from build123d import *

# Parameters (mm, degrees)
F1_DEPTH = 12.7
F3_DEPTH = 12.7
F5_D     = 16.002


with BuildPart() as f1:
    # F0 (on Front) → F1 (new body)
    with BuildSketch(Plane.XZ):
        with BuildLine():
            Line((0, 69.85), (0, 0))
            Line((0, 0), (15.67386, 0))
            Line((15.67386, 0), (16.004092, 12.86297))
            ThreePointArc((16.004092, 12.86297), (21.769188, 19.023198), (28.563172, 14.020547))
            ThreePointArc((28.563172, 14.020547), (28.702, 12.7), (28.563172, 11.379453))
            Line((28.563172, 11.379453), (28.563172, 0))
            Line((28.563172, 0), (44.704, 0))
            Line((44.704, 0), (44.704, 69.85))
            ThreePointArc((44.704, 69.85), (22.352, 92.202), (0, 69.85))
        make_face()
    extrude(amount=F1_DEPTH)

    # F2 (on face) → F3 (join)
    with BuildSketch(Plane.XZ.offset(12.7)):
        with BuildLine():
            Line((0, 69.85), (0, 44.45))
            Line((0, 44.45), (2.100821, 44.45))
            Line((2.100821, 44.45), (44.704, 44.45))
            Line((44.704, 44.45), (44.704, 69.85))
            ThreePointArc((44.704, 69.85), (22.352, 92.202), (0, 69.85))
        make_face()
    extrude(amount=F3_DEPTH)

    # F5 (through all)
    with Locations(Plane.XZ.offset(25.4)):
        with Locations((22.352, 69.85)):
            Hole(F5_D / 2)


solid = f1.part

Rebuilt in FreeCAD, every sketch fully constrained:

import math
import FreeCAD as App
import Part
import Sketcher
from FreeCAD import Vector
Q = App.Units.Quantity

doc = App.newDocument("Part")
body = doc.addObject("PartDesign::Body", "Body")

# Sketch on XZ plane
sketch1 = body.newObject("Sketcher::SketchObject", "Sketch")
sketch1.AttachmentSupport = (doc.getObject("XZ_Plane"), [""])
sketch1.MapMode = "FlatFace"
sketch1.addGeometry([
    Part.LineSegment(Vector(0, 69.85, 0), Vector(0, 0, 0)),  # 0
    Part.LineSegment(Vector(0, 0, 0), Vector(15.67386, 0, 0)),  # 1
    Part.LineSegment(Vector(15.67386, 0, 0), Vector(16.004092, 12.86297, 0)),  # 2
    Part.ArcOfCircle(Part.Circle(Vector(22.352, 12.7, 0), Vector(0, 0, 1), 6.35), math.radians(12.002836), math.radians(178.529371)),  # 3
    Part.ArcOfCircle(Part.Circle(Vector(22.351993, 12.7, 0), Vector(0, 0, 1), 6.350007), math.radians(-12.002825), math.radians(12.002825)),  # 4
    Part.LineSegment(Vector(28.563172, 11.379453, 0), Vector(28.563172, 0, 0)),  # 5
    Part.LineSegment(Vector(28.563172, 0, 0), Vector(44.704, 0, 0)),  # 6
    Part.LineSegment(Vector(44.704, 0, 0), Vector(44.704, 69.85, 0)),  # 7
    Part.ArcOfCircle(Part.Circle(Vector(22.352, 69.85, 0), Vector(0, 0, 1), 22.352), math.radians(0), math.radians(180)),  # 8
], False)
sketch1.addConstraint([
    Sketcher.Constraint("Coincident", 0, 2, 1, 1),
    Sketcher.Constraint("Coincident", 1, 2, 2, 1),
    Sketcher.Constraint("Tangent", 2, 2, 3, 2),
    Sketcher.Constraint("Tangent", 3, 1, 4, 2),
    Sketcher.Constraint("Coincident", 4, 1, 5, 1),
    Sketcher.Constraint("Coincident", 5, 2, 6, 1),
    Sketcher.Constraint("Coincident", 6, 2, 7, 1),
    Sketcher.Constraint("Tangent", 7, 2, 8, 1),
    Sketcher.Constraint("Tangent", 8, 2, 0, 1),
    Sketcher.Constraint("Vertical", 0),
    Sketcher.Constraint("Horizontal", 1),
    Sketcher.Constraint("Vertical", 5),
    Sketcher.Constraint("Horizontal", 6),
    Sketcher.Constraint("Vertical", 7),
    Sketcher.Constraint("Coincident", 0, 2, -1, 1),
    Sketcher.Constraint("PointOnObject", 5, 2, -1),
    Sketcher.Constraint("Vertical", 3, 3, 8, 3),
    Sketcher.Constraint("Vertical", 3, 1, 4, 1),
    Sketcher.Constraint("Radius", 3, Q("0.25 in")),
    Sketcher.Constraint("Radius", 8, Q("0.88 in")),
    Sketcher.Constraint("DistanceY", 0, 2, 0, 1, Q("2.75 in")),
    Sketcher.Constraint("DistanceY", -1, 1, 3, 3, Q("0.5 in")),
    Sketcher.Constraint("DistanceY", -1, 1, 4, 3, Q("0.5 in")),
    Sketcher.Constraint("DistanceX", 1, 1, 1, 2, Q("15.67386 mm")),
    Sketcher.Constraint("DistanceX", 6, 1, 6, 2, Q("16.140828 mm")),
])
pad1 = body.newObject("PartDesign::Pad", "Pad")
pad1.Profile = sketch1
pad1.Length = Q("0.5 in")

# Sketch on XZ plane
sketch2 = body.newObject("Sketcher::SketchObject", "Sketch001")
sketch2.AttachmentSupport = (doc.getObject("XZ_Plane"), [""])
sketch2.MapMode = "FlatFace"
sketch2.AttachmentOffset = App.Placement(Vector(0, 0, 0.5 * 25.4), App.Rotation())
sketch2.addGeometry([
    Part.LineSegment(Vector(0, 69.85, 0), Vector(0, 44.45, 0)),
    Part.LineSegment(Vector(0, 44.45, 0), Vector(44.704, 44.45, 0)),
    Part.LineSegment(Vector(44.704, 44.45, 0), Vector(44.704, 69.85, 0)),
    Part.ArcOfCircle(Part.Circle(Vector(22.352, 69.85, 0), Vector(0, 0, 1), 22.352), math.radians(0), math.radians(180)),
], False)
sketch2.addConstraint([
    Sketcher.Constraint("Coincident", 0, 2, 1, 1),
    Sketcher.Constraint("Coincident", 1, 2, 2, 1),
    Sketcher.Constraint("Tangent", 2, 2, 3, 1),
    Sketcher.Constraint("Tangent", 3, 2, 0, 1),
    Sketcher.Constraint("Vertical", 0),
    Sketcher.Constraint("Horizontal", 1),
    Sketcher.Constraint("Vertical", 2),
    Sketcher.Constraint("PointOnObject", 0, 2, -2),
    Sketcher.Constraint("DistanceY", 0, 2, 0, 1, Q("1 in")),
    Sketcher.Constraint("Radius", 3, Q("0.88 in")),
    Sketcher.Constraint("DistanceY", -1, 1, 3, 3, Q("2.75 in")),
])
pad2 = body.newObject("PartDesign::Pad", "Pad001")
pad2.Profile = sketch2
pad2.Length = Q("0.5 in")

# Sketch on XZ plane
sketch3 = body.newObject("Sketcher::SketchObject", "Sketch002")
sketch3.AttachmentSupport = (doc.getObject("XZ_Plane"), [""])
sketch3.MapMode = "FlatFace"
sketch3.AttachmentOffset = App.Placement(Vector(0, 0, 1 * 25.4), App.Rotation())
sketch3.addGeometry(Part.Circle(Vector(22.352, 69.85, 0), Vector(0, 0, 1), 8.001), False)
sketch3.addConstraint([
    Sketcher.Constraint("Diameter", 0, Q("0.63 in")),
    Sketcher.Constraint("DistanceX", -1, 1, 0, 3, Q("0.88 in")),
    Sketcher.Constraint("DistanceY", -1, 1, 0, 3, Q("2.75 in")),
])
doc.recompute()
hole = body.newObject("PartDesign::Hole", "Hole")
hole.Profile = sketch3
hole.ThreadType = "None"
hole.Diameter = Q("0.63 in")
hole.DepthType = "ThroughAll"

doc.recompute()
